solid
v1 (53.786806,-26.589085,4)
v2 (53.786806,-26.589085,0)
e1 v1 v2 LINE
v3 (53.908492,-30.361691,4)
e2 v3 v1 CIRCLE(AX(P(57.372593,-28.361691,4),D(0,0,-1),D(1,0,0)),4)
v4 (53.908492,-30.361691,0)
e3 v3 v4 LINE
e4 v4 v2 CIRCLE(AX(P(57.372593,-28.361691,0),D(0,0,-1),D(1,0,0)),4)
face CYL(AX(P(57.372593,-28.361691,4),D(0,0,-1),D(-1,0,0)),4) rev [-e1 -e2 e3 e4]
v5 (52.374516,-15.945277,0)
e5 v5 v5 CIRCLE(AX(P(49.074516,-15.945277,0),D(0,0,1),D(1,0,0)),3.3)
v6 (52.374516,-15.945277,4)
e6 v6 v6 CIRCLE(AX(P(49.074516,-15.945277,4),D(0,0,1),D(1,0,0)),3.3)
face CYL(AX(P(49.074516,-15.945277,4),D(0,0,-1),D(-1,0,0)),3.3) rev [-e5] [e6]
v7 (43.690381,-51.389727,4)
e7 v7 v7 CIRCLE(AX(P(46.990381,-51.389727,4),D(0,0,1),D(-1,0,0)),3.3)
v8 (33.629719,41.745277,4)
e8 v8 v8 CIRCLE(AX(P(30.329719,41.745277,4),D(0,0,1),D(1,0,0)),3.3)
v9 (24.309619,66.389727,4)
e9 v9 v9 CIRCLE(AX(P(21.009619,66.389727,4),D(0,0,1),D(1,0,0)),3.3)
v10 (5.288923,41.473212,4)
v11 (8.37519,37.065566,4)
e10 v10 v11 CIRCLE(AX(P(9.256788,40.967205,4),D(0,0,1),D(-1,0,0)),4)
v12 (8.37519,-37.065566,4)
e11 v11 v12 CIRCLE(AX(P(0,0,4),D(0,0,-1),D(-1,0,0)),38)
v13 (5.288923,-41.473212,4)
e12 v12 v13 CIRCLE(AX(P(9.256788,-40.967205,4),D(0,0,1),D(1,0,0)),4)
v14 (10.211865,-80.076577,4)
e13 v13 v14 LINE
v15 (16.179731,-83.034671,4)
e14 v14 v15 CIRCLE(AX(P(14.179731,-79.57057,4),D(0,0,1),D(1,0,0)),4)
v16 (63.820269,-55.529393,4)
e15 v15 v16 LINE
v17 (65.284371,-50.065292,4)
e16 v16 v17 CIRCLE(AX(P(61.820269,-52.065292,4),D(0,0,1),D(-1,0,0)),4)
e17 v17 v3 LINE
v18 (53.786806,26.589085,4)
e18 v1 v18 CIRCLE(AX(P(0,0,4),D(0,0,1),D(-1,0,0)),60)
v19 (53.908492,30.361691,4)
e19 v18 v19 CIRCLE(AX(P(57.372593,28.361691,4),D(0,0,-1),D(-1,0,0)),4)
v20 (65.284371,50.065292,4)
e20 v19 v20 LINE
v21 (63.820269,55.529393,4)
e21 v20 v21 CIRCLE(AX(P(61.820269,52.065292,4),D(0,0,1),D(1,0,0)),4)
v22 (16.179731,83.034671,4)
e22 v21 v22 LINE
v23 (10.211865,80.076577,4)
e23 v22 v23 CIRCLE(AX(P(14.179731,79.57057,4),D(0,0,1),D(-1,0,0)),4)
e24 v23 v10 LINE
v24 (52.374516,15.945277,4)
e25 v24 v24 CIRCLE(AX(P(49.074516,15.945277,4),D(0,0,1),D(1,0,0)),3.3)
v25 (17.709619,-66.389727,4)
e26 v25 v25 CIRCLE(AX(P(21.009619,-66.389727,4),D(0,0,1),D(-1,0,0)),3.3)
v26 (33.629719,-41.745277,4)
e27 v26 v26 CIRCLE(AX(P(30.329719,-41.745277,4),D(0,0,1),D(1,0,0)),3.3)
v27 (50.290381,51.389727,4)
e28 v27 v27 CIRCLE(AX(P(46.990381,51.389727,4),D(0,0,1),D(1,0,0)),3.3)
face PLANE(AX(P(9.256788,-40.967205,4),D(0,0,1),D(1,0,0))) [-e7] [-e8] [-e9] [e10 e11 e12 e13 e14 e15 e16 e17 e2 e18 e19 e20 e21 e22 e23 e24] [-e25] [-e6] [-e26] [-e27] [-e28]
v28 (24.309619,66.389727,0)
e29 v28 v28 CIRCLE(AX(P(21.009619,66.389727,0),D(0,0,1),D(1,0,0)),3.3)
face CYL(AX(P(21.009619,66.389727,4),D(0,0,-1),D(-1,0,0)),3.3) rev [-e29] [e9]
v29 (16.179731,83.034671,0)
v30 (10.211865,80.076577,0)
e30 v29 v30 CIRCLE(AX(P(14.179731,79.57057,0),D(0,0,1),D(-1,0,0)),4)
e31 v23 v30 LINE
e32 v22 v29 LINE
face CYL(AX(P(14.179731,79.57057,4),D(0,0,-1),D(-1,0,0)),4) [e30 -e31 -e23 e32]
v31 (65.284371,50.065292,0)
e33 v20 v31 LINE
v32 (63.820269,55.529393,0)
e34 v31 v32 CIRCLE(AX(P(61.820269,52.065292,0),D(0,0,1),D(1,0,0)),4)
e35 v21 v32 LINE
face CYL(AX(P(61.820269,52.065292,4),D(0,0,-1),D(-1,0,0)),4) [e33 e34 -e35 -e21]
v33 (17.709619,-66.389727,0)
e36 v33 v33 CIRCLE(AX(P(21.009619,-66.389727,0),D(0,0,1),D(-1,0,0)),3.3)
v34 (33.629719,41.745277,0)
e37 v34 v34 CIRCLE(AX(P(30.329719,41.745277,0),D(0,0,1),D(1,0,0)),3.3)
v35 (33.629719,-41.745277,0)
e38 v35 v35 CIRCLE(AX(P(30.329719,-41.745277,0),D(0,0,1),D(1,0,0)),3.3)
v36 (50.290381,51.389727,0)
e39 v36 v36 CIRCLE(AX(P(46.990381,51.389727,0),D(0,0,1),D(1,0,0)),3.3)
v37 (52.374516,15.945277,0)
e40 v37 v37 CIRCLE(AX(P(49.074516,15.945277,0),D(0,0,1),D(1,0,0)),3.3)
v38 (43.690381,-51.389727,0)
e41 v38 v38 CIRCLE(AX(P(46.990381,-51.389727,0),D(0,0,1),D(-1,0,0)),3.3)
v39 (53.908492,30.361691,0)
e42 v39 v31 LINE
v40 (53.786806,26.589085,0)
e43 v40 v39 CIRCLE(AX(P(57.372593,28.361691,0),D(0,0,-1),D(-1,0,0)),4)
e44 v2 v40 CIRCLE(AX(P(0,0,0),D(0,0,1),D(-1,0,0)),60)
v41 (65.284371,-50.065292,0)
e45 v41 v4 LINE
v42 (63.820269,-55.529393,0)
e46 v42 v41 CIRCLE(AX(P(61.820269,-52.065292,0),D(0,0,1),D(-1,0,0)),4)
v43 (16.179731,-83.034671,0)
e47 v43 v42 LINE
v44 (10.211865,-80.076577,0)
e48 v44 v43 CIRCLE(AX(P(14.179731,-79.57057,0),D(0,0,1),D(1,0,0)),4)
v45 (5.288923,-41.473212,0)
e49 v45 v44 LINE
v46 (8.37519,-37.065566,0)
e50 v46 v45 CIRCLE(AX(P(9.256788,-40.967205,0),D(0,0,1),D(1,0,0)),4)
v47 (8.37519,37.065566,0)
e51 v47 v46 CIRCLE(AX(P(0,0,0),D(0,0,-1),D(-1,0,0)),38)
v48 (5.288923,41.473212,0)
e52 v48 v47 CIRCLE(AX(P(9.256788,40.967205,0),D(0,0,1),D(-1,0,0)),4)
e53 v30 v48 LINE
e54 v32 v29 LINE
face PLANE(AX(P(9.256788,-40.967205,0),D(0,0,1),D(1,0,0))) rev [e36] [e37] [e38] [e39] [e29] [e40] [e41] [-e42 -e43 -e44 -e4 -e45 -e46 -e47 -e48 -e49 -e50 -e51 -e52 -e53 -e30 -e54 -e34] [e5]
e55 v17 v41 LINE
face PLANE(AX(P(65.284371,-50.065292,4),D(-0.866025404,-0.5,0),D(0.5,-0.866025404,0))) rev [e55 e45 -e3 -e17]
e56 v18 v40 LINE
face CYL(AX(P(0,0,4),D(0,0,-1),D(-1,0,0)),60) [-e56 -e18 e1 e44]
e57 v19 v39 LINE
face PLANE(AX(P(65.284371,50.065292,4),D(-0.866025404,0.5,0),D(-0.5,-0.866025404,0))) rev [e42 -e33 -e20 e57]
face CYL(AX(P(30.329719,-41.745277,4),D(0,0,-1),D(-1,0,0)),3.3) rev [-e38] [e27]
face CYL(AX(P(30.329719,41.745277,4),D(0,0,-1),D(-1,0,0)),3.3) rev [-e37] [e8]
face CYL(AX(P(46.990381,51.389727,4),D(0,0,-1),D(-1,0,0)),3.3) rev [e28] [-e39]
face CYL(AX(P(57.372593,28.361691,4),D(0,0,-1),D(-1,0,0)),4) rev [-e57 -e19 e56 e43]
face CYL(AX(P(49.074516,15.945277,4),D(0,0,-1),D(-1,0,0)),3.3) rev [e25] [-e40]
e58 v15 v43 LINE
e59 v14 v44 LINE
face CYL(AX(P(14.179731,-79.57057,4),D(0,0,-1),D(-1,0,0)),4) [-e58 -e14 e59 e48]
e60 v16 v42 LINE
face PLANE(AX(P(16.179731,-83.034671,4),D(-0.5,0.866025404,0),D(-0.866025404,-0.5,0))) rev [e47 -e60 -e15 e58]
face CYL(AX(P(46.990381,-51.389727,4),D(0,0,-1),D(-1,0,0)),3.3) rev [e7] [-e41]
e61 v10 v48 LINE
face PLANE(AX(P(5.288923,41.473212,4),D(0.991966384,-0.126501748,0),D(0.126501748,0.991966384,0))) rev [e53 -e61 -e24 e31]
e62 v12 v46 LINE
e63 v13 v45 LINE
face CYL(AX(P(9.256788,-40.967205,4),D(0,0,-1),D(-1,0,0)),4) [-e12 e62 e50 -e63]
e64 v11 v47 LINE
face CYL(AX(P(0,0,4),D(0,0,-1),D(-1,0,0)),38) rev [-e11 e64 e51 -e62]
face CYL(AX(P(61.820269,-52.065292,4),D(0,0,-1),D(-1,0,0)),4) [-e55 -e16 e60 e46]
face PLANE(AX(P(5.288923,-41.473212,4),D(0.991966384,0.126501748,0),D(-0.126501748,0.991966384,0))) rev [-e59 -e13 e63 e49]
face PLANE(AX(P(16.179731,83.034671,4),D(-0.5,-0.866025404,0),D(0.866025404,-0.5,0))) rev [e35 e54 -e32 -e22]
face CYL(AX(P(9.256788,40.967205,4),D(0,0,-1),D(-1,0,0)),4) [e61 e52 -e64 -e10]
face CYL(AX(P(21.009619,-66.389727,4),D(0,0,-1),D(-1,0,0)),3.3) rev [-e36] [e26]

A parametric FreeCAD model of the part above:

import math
import FreeCAD as App
import Part
import Sketcher

V = App.Vector
Q = App.Units.Quantity

doc = App.newDocument("Part")
body = doc.addObject("PartDesign::Body", "Body")

sketch1 = body.newObject("Sketcher::SketchObject", "Sketch")
sketch1.AttachmentSupport = (doc.getObject("XY_Plane"), [""])
sketch1.MapMode = "FlatFace"
sketch1.addGeometry([
    Part.LineSegment(V(10.2, 80.1, 0), V(5.3, 41.5, 0)),
    Part.ArcOfCircle(Part.Circle(V(9.3, 41, 0), V(0, 0, 1), 4), math.radians(173), math.radians(257)),
    Part.ArcOfCircle(Part.Circle(V(0, 0, 0), V(0, 0, 1), 38), math.radians(-77), math.radians(77)),
    Part.ArcOfCircle(Part.Circle(V(9.3, -41, 0), V(0, 0, 1), 4), math.radians(103), math.radians(187)),
    Part.LineSegment(V(5.3, -41.5, 0), V(10.2, -80.1, 0)),
    Part.ArcOfCircle(Part.Circle(V(14.2, -79.6, 0), V(0, 0, 1), 4), math.radians(-173), math.radians(-60)),
    Part.LineSegment(V(16.2, -83, 0), V(63.8, -55.5, 0)),
    Part.ArcOfCircle(Part.Circle(V(61.8, -52.1, 0), V(0, 0, 1), 4), math.radians(-60), math.radians(30)),
    Part.LineSegment(V(65.3, -50.1, 0), V(53.9, -30.4, 0)),
    Part.ArcOfCircle(Part.Circle(V(57.4, -28.4, 0), V(0, 0, 1), 4), math.radians(154), math.radians(210)),
    Part.ArcOfCircle(Part.Circle(V(0, 0, 0), V(0, 0, 1), 60), math.radians(-26), math.radians(26)),
    Part.ArcOfCircle(Part.Circle(V(57.4, 28.4, 0), V(0, 0, 1), 4), math.radians(150), math.radians(206)),
    Part.LineSegment(V(53.9, 30.4, 0), V(65.3, 50.1, 0)),
    Part.ArcOfCircle(Part.Circle(V(61.8, 52.1, 0), V(0, 0, 1), 4), math.radians(-30), math.radians(60)),
    Part.LineSegment(V(63.8, 55.5, 0), V(16.2, 83, 0)),
    Part.ArcOfCircle(Part.Circle(V(14.2, 79.6, 0), V(0, 0, 1), 4), math.radians(60), math.radians(173)),
    Part.Circle(V(47, -51.4, 0), V(0, 0, 1), 3.3),
    Part.Circle(V(49.1, -15.9, 0), V(0, 0, 1), 3.3),
    Part.Circle(V(30.3, -41.7, 0), V(0, 0, 1), 3.3),
    Part.Circle(V(21, -66.4, 0), V(0, 0, 1), 3.3),
    Part.Circle(V(49.1, 15.9, 0), V(0, 0, 1), 3.3),
    Part.Circle(V(47, 51.4, 0), V(0, 0, 1), 3.3),
    Part.Circle(V(30.3, 41.7, 0), V(0, 0, 1), 3.3),
    Part.Circle(V(21, 66.4, 0), V(0, 0, 1), 3.3),
], False)
sketch1.addConstraint([
    Sketcher.Constraint("Tangent", 0, 2, 1, 1),
    Sketcher.Constraint("Tangent", 1, 2, 2, 2),
    Sketcher.Constraint("Tangent", 2, 1, 3, 1),
    Sketcher.Constraint("Tangent", 3, 2, 4, 1),
    Sketcher.Constraint("Tangent", 4, 2, 5, 1),
    Sketcher.Constraint("Tangent", 5, 2, 6, 1),
    Sketcher.Constraint("Tangent", 6, 2, 7, 1),
    Sketcher.Constraint("Tangent", 7, 2, 8, 1),
    Sketcher.Constraint("Tangent", 8, 2, 9, 2),
    Sketcher.Constraint("Tangent", 9, 1, 10, 1),
    Sketcher.Constraint("Tangent", 10, 2, 11, 2),
    Sketcher.Constraint("Tangent", 11, 1, 12, 1),
    Sketcher.Constraint("Tangent", 12, 2, 13, 1),
    Sketcher.Constraint("Tangent", 13, 2, 14, 1),
    Sketcher.Constraint("Tangent", 14, 2, 15, 1),
    Sketcher.Constraint("Tangent", 15, 2, 0, 1),
    Sketcher.Constraint("Coincident", 2, 3, -1, 1),
    Sketcher.Constraint("Coincident", 10, 3, -1, 1),
    Sketcher.Constraint("Equal", 1, 3),
    Sketcher.Constraint("Equal", 3, 5),
    Sketcher.Constraint("Equal", 5, 7),
    Sketcher.Constraint("Equal", 7, 9),
    Sketcher.Constraint("Equal", 9, 11),
    Sketcher.Constraint("Equal", 11, 13),
    Sketcher.Constraint("Equal", 13, 15),
    Sketcher.Constraint("Equal", 16, 17),
    Sketcher.Constraint("Equal", 17, 18),
    Sketcher.Constraint("Equal", 18, 19),
    Sketcher.Constraint("Equal", 19, 20),
    Sketcher.Constraint("Equal", 20, 21),
    Sketcher.Constraint("Equal", 21, 22),
    Sketcher.Constraint("Equal", 22, 23),
    Sketcher.Constraint("Symmetric", 7, 3, 13, 3, -1),
    Sketcher.Constraint("Symmetric", 5, 3, 15, 3, -1),
    Sketcher.Constraint("Symmetric", 17, 3, 20, 3, -1),
    Sketcher.Constraint("Symmetric", 16, 3, 21, 3, -1),
    Sketcher.Constraint("Symmetric", 18, 3, 22, 3, -1),
    Sketcher.Constraint("Symmetric", 19, 3, 23, 3, -1),
    Sketcher.Constraint("Perpendicular", 6, 8),
    Sketcher.Constraint("Perpendicular", 12, 14),
    Sketcher.Constraint("Vertical", 1, 3, 3, 3),
    Sketcher.Constraint("Radius", 1, Q("4 mm")),
    Sketcher.Constraint("Radius", 2, Q("38 mm")),
    Sketcher.Constraint("Radius", 10, Q("60 mm")),
    Sketcher.Constraint("Diameter", 16, Q("6.6 mm")),
    Sketcher.Constraint("Angle", 6, Q("30 deg")),
    Sketcher.Constraint("DistanceY", 19, 3, 16, 3, Q("15 mm")),
    Sketcher.Constraint("DistanceY", 18, 3, 17, 3, Q("25.8 mm")),
    Sketcher.Constraint("Distance", 0, Q("38.916001 mm")),
    Sketcher.Constraint("DistanceY", 7, 3, 9, 3, Q("23.703601 mm")),
    Sketcher.Constraint("DistanceX", 19, 3, 18, 3, Q("9.3201 mm")),
    Sketcher.Constraint("DistanceX", 1, 2, 1, 3, Q("0.881599 mm")),
    Sketcher.Constraint("DistanceX", -1, 1, 5, 3, Q("14.179731 mm")),
    Sketcher.Constraint("DistanceX", -1, 1, 16, 3, Q("46.990381 mm")),
    Sketcher.Constraint("DistanceX", -1, 1, 18, 3, Q("30.329719 mm")),
    Sketcher.Constraint("DistanceY", 16, 3, 17, 3, Q("35.444451 mm")),
    Sketcher.Constraint("DistanceY", 17, 3, 11, 3, Q("44.306968 mm")),
    Sketcher.Constraint("DistanceX", 17, 3, 9, 1, Q("4.71229 mm")),
])
pad1 = body.newObject("PartDesign::Pad", "Pad")
pad1.Profile = sketch1
pad1.Length = 4

doc.recompute()
